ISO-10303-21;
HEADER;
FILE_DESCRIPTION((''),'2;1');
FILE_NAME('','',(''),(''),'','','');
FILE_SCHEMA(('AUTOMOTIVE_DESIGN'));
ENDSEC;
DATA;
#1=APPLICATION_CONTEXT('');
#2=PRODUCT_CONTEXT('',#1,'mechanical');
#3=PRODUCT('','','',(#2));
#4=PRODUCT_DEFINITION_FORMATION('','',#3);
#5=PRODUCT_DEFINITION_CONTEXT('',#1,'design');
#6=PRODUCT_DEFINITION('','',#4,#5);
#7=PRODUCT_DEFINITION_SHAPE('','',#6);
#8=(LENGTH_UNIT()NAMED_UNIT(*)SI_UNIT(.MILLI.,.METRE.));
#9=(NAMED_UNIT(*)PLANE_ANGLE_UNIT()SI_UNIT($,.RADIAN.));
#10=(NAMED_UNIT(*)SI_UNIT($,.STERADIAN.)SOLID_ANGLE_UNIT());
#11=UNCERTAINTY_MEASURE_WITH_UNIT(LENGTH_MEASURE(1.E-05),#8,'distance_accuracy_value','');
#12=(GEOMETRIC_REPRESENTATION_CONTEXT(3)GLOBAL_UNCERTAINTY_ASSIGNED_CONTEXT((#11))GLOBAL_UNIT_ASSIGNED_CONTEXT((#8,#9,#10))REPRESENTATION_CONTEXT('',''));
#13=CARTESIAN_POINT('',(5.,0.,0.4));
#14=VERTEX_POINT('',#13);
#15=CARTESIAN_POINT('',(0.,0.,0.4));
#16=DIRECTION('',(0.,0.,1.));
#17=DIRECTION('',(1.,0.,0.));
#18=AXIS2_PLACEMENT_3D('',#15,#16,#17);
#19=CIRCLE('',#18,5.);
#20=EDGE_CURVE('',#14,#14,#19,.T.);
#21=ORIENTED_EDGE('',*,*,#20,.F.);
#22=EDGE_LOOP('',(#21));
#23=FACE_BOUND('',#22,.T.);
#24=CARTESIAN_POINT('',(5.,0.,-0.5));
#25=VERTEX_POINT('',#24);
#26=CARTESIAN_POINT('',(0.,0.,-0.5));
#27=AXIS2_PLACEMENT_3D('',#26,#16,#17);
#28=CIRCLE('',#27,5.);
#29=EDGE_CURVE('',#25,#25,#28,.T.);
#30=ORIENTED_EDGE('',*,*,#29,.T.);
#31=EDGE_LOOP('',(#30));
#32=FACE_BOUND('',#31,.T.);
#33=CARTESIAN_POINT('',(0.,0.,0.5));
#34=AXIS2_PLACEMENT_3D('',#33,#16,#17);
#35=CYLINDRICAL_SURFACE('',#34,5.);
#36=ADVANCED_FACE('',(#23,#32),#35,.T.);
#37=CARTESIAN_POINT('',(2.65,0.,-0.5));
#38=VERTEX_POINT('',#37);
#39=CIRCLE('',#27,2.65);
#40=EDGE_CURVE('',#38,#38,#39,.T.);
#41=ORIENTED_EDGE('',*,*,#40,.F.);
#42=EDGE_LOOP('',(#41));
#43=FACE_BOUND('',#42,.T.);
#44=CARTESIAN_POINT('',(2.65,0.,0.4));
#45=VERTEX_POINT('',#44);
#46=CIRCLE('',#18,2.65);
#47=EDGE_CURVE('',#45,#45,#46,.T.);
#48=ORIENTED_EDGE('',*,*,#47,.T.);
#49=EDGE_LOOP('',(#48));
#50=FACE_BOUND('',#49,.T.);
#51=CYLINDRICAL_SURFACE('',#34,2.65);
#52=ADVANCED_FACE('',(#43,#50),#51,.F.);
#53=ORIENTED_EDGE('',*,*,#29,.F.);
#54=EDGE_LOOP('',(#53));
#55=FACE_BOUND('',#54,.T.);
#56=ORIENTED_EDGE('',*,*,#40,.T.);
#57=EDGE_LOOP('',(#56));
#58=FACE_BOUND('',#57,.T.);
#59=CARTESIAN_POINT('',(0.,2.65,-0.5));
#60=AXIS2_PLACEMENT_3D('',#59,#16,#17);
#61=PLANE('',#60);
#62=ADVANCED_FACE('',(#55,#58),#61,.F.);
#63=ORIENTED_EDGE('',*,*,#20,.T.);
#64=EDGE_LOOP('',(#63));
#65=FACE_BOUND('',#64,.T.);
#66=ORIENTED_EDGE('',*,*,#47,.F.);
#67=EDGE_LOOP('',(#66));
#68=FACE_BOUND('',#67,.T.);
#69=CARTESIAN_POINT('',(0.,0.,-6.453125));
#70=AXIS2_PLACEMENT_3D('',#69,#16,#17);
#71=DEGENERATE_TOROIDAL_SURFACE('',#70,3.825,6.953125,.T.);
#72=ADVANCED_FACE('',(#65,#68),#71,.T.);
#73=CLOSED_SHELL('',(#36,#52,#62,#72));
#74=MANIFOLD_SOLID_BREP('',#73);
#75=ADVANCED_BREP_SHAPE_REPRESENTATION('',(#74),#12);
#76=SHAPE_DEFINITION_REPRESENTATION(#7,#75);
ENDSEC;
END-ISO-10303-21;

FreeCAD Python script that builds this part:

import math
import FreeCAD as App
import Part
import Sketcher
from FreeCAD import Vector

doc = App.newDocument("Part")
body = doc.addObject("PartDesign::Body", "Body")

# Sketch on YZ plane
sketch1 = body.newObject("Sketcher::SketchObject", "Sketch")
sketch1.AttachmentSupport = (doc.getObject("YZ_Plane"), [""])
sketch1.MapMode = "FlatFace"
sketch1.addGeometry(Part.LineSegment(Vector(5, -0.5, 0), Vector(5, 0.4, 0)), False)
sketch1.addGeometry(Part.ArcOfCircle(Part.Circle(Vector(3.8, -6.5, 0), Vector(0, 0, 1), 7), math.radians(80.27), math.radians(99.73)), False)
sketch1.addGeometry(Part.LineSegment(Vector(2.6, 0.4, 0), Vector(2.6, -0.5, 0)), False)
sketch1.addGeometry(Part.LineSegment(Vector(2.6, -0.5, 0), Vector(5, -0.5, 0)), False)
sketch1.addConstraint(Sketcher.Constraint("Coincident", 0, 2, 1, 1))
sketch1.addConstraint(Sketcher.Constraint("Coincident", 1, 2, 2, 1))
sketch1.addConstraint(Sketcher.Constraint("Coincident", 2, 2, 3, 1))
sketch1.addConstraint(Sketcher.Constraint("Coincident", 3, 2, 0, 1))
sketch1.addConstraint(Sketcher.Constraint("Vertical", 0))
sketch1.addConstraint(Sketcher.Constraint("Vertical", 2))
sketch1.addConstraint(Sketcher.Constraint("Horizontal", 3))
sketch1.addConstraint(Sketcher.Constraint("Horizontal", 0, 2, 1, 2))
sketch1.addConstraint(Sketcher.Constraint("DistanceY", 0, 1, 0, 2, 0.9))
sketch1.addConstraint(Sketcher.Constraint("DistanceX", -1, 1, 0, 2, 5.0))
sketch1.addConstraint(Sketcher.Constraint("DistanceX", 3, 1, 3, 2, 2.35))
sketch1.addConstraint(Sketcher.Constraint("DistanceY", -1, 1, 0, 2, 0.4))
sketch1.addConstraint(Sketcher.Constraint("Radius", 1, 6.953125))
revolution = body.newObject("PartDesign::Revolution", "Revolution")
revolution.Profile = sketch1
revolution.ReferenceAxis = (sketch1, ["V_Axis"])
revolution.Angle = 360

doc.recompute()
